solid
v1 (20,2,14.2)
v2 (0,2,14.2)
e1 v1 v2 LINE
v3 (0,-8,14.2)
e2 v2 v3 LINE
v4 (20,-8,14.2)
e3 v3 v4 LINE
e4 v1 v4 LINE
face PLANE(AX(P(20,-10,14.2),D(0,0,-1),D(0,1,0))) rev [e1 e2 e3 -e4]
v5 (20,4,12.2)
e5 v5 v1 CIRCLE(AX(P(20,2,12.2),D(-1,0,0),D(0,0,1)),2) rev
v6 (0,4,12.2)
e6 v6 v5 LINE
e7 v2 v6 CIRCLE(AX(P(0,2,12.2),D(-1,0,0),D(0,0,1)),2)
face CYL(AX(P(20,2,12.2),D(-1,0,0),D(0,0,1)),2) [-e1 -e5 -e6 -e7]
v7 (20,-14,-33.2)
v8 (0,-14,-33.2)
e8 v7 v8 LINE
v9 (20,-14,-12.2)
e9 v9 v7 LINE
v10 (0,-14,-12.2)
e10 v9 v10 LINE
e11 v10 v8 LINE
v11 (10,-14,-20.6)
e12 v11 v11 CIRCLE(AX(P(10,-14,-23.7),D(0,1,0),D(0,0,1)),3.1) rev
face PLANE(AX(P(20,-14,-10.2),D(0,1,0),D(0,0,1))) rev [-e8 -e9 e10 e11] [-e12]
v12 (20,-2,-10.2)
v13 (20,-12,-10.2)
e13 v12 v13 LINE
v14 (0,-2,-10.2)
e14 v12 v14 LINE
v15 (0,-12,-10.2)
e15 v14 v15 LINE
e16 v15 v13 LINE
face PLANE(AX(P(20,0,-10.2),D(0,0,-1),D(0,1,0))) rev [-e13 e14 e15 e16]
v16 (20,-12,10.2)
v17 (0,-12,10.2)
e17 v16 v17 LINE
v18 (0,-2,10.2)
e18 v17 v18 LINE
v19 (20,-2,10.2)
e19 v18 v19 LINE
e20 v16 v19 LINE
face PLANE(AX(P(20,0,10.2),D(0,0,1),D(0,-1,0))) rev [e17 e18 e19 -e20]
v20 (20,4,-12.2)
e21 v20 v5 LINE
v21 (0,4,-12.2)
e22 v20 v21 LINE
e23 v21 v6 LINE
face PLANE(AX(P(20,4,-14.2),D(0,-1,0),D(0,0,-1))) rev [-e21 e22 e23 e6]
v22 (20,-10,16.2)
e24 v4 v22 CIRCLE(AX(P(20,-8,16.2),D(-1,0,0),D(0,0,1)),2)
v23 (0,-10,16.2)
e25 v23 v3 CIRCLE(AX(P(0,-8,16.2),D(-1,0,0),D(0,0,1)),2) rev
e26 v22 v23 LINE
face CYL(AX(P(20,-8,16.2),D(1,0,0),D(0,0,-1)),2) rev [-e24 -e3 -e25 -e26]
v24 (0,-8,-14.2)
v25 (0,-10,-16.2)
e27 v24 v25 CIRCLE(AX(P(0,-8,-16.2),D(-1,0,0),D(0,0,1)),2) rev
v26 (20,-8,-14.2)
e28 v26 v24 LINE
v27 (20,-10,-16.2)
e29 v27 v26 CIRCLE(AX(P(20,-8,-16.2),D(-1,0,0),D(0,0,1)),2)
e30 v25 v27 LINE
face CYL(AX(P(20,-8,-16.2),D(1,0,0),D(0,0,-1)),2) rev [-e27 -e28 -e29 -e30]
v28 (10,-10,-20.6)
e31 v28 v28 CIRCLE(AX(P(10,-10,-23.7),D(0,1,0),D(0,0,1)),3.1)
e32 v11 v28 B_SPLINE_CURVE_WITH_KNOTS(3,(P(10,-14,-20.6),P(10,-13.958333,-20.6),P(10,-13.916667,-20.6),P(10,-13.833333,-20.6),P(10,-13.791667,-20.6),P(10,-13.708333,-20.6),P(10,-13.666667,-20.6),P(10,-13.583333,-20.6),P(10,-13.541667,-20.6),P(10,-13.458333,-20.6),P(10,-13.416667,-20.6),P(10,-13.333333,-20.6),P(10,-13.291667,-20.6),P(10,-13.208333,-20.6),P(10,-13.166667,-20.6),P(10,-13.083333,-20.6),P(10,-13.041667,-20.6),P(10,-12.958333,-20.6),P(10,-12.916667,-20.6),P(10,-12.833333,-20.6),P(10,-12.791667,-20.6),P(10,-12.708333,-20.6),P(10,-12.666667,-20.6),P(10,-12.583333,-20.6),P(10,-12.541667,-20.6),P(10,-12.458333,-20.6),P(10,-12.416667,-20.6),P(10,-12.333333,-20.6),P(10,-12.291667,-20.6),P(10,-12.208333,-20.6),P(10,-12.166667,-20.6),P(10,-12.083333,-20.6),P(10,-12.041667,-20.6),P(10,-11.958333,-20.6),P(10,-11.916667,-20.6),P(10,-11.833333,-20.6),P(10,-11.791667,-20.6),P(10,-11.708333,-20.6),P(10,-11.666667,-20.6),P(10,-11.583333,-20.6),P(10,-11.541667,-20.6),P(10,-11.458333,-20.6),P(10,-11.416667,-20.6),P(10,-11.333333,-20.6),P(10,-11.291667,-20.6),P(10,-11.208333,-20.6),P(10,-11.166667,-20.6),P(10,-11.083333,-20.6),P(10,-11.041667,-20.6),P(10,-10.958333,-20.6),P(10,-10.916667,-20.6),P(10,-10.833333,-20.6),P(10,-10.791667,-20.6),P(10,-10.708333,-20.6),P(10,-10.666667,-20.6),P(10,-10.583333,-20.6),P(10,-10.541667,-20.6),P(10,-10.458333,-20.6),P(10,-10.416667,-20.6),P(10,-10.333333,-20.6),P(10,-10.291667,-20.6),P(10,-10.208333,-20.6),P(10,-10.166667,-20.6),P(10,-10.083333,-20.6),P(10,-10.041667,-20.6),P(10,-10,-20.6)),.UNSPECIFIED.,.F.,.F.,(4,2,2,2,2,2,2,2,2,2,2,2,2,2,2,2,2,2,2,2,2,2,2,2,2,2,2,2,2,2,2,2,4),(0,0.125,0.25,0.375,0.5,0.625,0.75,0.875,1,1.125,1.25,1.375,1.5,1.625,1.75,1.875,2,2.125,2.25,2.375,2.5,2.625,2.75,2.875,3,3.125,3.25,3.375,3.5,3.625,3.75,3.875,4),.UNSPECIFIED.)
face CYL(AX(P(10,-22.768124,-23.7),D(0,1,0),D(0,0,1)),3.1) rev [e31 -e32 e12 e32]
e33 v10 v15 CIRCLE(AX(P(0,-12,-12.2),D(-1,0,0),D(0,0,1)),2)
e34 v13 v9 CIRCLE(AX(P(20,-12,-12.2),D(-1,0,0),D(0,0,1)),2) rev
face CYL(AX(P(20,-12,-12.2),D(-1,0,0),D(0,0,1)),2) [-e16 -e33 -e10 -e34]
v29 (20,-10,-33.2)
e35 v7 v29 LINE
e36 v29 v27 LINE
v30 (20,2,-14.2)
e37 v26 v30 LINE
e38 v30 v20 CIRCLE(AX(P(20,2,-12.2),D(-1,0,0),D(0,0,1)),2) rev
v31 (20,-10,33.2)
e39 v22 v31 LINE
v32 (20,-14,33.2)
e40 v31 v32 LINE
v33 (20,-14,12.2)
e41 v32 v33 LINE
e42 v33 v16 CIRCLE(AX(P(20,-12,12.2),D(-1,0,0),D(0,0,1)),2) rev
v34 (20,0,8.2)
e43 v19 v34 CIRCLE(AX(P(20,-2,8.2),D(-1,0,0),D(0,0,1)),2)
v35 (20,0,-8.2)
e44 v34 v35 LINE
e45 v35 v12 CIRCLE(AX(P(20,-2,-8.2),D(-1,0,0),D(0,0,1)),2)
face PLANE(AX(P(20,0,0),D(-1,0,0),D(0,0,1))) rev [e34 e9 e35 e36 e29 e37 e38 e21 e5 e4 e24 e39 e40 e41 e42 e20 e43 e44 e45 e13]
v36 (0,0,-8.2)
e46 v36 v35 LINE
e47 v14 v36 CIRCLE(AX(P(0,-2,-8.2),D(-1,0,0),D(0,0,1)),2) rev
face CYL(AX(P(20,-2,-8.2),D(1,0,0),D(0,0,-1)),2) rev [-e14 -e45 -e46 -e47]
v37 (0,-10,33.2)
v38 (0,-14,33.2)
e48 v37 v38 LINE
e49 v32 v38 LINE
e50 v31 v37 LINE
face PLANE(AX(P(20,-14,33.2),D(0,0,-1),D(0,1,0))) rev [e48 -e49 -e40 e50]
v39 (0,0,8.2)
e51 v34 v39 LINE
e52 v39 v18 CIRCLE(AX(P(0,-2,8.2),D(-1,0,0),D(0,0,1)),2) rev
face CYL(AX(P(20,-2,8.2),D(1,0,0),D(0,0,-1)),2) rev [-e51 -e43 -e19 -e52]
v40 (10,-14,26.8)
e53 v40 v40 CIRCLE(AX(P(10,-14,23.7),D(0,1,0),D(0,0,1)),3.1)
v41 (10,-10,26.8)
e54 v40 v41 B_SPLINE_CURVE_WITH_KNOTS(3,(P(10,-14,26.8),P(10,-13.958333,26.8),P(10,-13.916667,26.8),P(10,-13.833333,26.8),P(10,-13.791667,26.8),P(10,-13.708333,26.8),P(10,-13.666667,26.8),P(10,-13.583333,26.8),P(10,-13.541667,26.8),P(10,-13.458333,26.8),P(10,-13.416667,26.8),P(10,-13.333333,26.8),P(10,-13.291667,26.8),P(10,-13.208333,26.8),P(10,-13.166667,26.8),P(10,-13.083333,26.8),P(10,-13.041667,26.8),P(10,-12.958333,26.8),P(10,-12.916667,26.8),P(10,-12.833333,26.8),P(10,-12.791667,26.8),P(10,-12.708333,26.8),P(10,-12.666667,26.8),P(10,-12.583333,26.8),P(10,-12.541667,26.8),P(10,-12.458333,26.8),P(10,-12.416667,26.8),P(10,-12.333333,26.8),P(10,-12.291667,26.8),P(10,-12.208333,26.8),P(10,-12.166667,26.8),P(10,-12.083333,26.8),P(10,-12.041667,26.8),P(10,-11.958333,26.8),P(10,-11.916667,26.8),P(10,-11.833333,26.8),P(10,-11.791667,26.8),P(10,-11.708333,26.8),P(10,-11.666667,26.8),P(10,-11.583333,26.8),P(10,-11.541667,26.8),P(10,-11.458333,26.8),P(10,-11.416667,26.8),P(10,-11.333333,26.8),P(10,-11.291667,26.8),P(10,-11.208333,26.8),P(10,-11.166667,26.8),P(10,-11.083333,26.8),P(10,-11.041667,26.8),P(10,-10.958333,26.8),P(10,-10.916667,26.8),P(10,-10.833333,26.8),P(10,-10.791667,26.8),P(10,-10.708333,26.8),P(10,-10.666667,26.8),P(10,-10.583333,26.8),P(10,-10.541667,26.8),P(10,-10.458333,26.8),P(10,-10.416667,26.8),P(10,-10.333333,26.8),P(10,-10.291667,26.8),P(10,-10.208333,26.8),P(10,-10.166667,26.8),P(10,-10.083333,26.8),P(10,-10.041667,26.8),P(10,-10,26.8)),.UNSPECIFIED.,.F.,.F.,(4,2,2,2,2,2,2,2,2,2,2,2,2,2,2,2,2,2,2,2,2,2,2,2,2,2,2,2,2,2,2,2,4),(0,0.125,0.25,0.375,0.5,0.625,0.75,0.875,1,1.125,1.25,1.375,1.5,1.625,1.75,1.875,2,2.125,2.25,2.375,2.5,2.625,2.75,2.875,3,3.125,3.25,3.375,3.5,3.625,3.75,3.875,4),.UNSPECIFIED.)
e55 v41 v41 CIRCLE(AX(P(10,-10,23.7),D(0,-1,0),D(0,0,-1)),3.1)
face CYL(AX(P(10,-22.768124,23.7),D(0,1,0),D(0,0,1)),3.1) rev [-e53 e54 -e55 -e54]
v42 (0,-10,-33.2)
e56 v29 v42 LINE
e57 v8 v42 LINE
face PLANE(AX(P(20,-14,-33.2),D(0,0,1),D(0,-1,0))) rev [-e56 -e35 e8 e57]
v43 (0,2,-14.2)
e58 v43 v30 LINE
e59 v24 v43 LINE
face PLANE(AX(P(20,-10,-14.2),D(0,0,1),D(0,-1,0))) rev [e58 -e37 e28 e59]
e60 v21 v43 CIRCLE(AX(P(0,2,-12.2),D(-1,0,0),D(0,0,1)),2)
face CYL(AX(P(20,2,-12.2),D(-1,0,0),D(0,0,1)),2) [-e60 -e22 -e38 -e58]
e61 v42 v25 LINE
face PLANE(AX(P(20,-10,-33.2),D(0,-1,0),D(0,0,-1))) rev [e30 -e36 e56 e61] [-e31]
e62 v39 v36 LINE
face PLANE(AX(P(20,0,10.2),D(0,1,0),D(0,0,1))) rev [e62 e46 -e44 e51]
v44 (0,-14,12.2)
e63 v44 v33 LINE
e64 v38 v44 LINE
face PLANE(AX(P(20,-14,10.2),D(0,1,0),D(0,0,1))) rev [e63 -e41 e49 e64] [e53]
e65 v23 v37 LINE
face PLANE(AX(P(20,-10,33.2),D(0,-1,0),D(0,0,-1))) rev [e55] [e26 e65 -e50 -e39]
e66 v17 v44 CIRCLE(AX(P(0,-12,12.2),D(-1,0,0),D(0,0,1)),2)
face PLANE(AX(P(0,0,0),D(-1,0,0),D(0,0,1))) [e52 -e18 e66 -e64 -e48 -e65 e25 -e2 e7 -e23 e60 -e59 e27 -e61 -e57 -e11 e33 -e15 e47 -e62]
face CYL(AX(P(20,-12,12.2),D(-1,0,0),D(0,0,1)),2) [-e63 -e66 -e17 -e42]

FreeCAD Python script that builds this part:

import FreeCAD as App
import Part
import Sketcher


def edges_at(feature, points):
    """Names of the edges that pass closest to the given points."""
    edges = feature.Shape.Edges
    near = lambda p: min(range(len(edges)), key=lambda i: edges[i].distToShape(Part.Vertex(*p))[0])
    return sorted({f"Edge{near(p) + 1}" for p in points})

doc = App.newDocument("Part")
body = doc.addObject("PartDesign::Body", "Body")

# Sketch on YZ plane
sketch1 = body.newObject("Sketcher::SketchObject", "Sketch")
sketch1.AttachmentSupport = (doc.getObject("YZ_Plane"), [""])
sketch1.MapMode = "FlatFace"
sketch1.addGeometry(Part.LineSegment(App.Vector(0, 10.2, 0), App.Vector(0, -10.2, 0)), False)
sketch1.addGeometry(Part.LineSegment(App.Vector(0, -10.2, 0), App.Vector(-14, -10.2, 0)), False)
sketch1.addGeometry(Part.LineSegment(App.Vector(-14, -10.2, 0), App.Vector(-14, -33.2, 0)), False)
sketch1.addGeometry(Part.LineSegment(App.Vector(-14, -33.2, 0), App.Vector(-10, -33.2, 0)), False)
sketch1.addGeometry(Part.LineSegment(App.Vector(-10, -33.2, 0), App.Vector(-10, -14.2, 0)), False)
sketch1.addGeometry(Part.LineSegment(App.Vector(-10, -14.2, 0), App.Vector(4, -14.2, 0)), False)
sketch1.addGeometry(Part.LineSegment(App.Vector(4, -14.2, 0), App.Vector(4, 14.2, 0)), False)
sketch1.addGeometry(Part.LineSegment(App.Vector(4, 14.2, 0), App.Vector(-10, 14.2, 0)), False)
sketch1.addGeometry(Part.LineSegment(App.Vector(-10, 14.2, 0), App.Vector(-10, 33.2, 0)), False)
sketch1.addGeometry(Part.LineSegment(App.Vector(-10, 33.2, 0), App.Vector(-14, 33.2, 0)), False)
sketch1.addGeometry(Part.LineSegment(App.Vector(-14, 33.2, 0), App.Vector(-14, 10.2, 0)), False)
sketch1.addGeometry(Part.LineSegment(App.Vector(-14, 10.2, 0), App.Vector(0, 10.2, 0)), False)
sketch1.addConstraint(Sketcher.Constraint("Coincident", 0, 2, 1, 1))
sketch1.addConstraint(Sketcher.Constraint("Coincident", 1, 2, 2, 1))
sketch1.addConstraint(Sketcher.Constraint("Coincident", 2, 2, 3, 1))
sketch1.addConstraint(Sketcher.Constraint("Coincident", 3, 2, 4, 1))
sketch1.addConstraint(Sketcher.Constraint("Coincident", 4, 2, 5, 1))
sketch1.addConstraint(Sketcher.Constraint("Coincident", 5, 2, 6, 1))
sketch1.addConstraint(Sketcher.Constraint("Coincident", 6, 2, 7, 1))
sketch1.addConstraint(Sketcher.Constraint("Coincident", 7, 2, 8, 1))
sketch1.addConstraint(Sketcher.Constraint("Coincident", 8, 2, 9, 1))
sketch1.addConstraint(Sketcher.Constraint("Coincident", 9, 2, 10, 1))
sketch1.addConstraint(Sketcher.Constraint("Coincident", 10, 2, 11, 1))
sketch1.addConstraint(Sketcher.Constraint("Coincident", 11, 2, 0, 1))
sketch1.addConstraint(Sketcher.Constraint("Vertical", 0))
sketch1.addConstraint(Sketcher.Constraint("Horizontal", 1))
sketch1.addConstraint(Sketcher.Constraint("Vertical", 2))
sketch1.addConstraint(Sketcher.Constraint("Horizontal", 3))
sketch1.addConstraint(Sketcher.Constraint("Vertical", 4))
sketch1.addConstraint(Sketcher.Constraint("Horizontal", 5))
sketch1.addConstraint(Sketcher.Constraint("Vertical", 6))
sketch1.addConstraint(Sketcher.Constraint("Horizontal", 7))
sketch1.addConstraint(Sketcher.Constraint("Vertical", 8))
sketch1.addConstraint(Sketcher.Constraint("Horizontal", 9))
sketch1.addConstraint(Sketcher.Constraint("Vertical", 10))
sketch1.addConstraint(Sketcher.Constraint("Horizontal", 11))
sketch1.addConstraint(Sketcher.Constraint("Symmetric", 0, 2, 11, 2, -1, 1))
sketch1.addConstraint(Sketcher.Constraint("Symmetric", 4, 2, 7, 2, -1))
sketch1.addConstraint(Sketcher.Constraint("Symmetric", 2, 2, 9, 2, -1))
sketch1.addConstraint(Sketcher.Constraint("Equal", 1, 5))
sketch1.addConstraint(Sketcher.Constraint("DistanceX", 1, 2, 1, 1, 14.0))
sketch1.addConstraint(Sketcher.Constraint("DistanceX", 3, 1, 3, 2, 4.0))
sketch1.addConstraint(Sketcher.Constraint("DistanceY", 2, 2, 2, 1, 23.0))
sketch1.addConstraint(Sketcher.Constraint("DistanceY", 4, 1, 4, 2, 19.0))
sketch1.addConstraint(Sketcher.Constraint("DistanceY", 0, 2, 0, 1, 20.4))
pad1 = body.newObject("PartDesign::Pad", "Pad")
pad1.Profile = sketch1
pad1.Length = 20

# Sketch on XZ plane
sketch2 = body.newObject("Sketcher::SketchObject", "Sketch001")
sketch2.AttachmentSupport = (doc.getObject("XZ_Plane"), [""])
sketch2.MapMode = "FlatFace"
sketch2.AttachmentOffset = App.Placement(App.Vector(0, 0, 10), App.Rotation())
sketch2.addGeometry(Part.Circle(App.Vector(10, -23.7, 0), App.Vector(0, 0, 1), 3.1), False)
sketch2.addConstraint(Sketcher.Constraint("Diameter", 0, 6.2))
sketch2.addConstraint(Sketcher.Constraint("DistanceX", -1, 1, 0, 3, 10.0))
sketch2.addConstraint(Sketcher.Constraint("DistanceY", 0, 3, -1, 1, 23.7))
pocket1 = body.newObject("PartDesign::Pocket", "Pocket")
pocket1.Profile = sketch2
pocket1.Length = 4
pocket1.Reversed = True
doc.recompute()

mirrored = body.newObject("PartDesign::Mirrored", "Mirrored")
mirrored.Originals = [pocket1]
mirrored.MirrorPlane = (doc.getObject("XY_Plane"), [""])
body.Tip = mirrored
doc.recompute()

fillet = body.newObject("PartDesign::Fillet", "Fillet")
fillet.Base = (mirrored, edges_at(mirrored, [
    (10, -14, 10.2),
    (10, -10, 14.2),
    (10, 4, 14.2),
    (10, 4, -14.2),
    (10, -10, -14.2),
    (10, -14, -10.2),
    (10, 0, -10.2),
    (10, 0, 10.2),
]))
fillet.Radius = 2

doc.recompute()
